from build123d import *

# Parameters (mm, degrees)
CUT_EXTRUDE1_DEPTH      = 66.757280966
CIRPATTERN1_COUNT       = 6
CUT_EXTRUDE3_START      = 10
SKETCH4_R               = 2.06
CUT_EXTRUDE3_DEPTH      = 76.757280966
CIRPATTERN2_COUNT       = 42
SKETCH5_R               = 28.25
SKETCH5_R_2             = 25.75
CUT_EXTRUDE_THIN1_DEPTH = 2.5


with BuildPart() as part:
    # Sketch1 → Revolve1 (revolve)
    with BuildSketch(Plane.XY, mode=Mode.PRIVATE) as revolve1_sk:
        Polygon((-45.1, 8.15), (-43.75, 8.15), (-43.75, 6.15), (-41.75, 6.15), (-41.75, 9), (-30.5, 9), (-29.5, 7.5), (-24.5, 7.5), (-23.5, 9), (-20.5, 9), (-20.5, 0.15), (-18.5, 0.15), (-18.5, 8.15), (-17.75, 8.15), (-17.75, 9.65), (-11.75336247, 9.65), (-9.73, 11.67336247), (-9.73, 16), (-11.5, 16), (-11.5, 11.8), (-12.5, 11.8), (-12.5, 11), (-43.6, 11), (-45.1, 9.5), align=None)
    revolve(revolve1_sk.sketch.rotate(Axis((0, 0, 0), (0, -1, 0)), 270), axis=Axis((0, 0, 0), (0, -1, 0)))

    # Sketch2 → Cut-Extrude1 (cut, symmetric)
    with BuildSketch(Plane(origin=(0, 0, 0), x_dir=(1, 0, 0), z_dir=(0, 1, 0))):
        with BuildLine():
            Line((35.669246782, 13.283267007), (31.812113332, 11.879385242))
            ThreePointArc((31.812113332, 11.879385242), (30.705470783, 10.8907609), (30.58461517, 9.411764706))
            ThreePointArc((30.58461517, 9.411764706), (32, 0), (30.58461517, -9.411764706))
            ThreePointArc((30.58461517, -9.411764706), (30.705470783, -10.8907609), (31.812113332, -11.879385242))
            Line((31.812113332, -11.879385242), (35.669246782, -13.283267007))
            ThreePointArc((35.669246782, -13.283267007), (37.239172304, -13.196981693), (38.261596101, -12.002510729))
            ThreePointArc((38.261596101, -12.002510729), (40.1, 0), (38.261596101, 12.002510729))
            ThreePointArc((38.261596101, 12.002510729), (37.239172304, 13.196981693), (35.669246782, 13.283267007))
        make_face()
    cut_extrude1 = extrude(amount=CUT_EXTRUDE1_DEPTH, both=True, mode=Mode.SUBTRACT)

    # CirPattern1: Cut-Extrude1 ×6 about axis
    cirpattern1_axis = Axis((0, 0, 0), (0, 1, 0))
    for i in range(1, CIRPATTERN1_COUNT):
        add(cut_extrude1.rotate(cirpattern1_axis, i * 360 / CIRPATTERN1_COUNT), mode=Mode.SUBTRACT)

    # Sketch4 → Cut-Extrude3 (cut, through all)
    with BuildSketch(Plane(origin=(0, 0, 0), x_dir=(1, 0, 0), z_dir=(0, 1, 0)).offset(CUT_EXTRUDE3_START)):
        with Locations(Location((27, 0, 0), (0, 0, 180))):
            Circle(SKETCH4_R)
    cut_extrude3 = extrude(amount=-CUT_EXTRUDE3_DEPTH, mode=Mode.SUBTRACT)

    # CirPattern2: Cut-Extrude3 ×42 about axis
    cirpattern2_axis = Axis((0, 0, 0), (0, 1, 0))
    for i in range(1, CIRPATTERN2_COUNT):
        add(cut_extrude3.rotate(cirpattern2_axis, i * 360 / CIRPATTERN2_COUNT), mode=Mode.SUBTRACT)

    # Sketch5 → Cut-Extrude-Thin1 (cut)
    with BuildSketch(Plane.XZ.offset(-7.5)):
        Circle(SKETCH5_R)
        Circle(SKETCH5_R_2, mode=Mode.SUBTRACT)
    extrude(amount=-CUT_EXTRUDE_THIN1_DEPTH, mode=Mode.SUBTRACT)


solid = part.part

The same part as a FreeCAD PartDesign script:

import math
import FreeCAD as App
import Part
import Sketcher

V = App.Vector
Q = App.Units.Quantity


def add_polygon(sketch, points):
    """Adds a closed chain of lines whose ends are joined by coincident constraints."""
    first, n = sketch.GeometryCount, len(points)
    for a, b in zip(points, points[1:] + points[:1]):
        sketch.addGeometry(Part.LineSegment(App.Vector(*a, 0), App.Vector(*b, 0)), False)
    for i in range(n):
        sketch.addConstraint(Sketcher.Constraint("Coincident", first + i, 2, first + (i + 1) % n, 1))

doc = App.newDocument("Part")
params = doc.addObject("Spreadsheet::Sheet", "Params")
for row, (alias, value) in enumerate([
    ("sketch1_width", "2 mm"),
    ("sketch1_width2", "5 mm"),
    ("sketch1_width3", "3 mm"),
    ("sketch1_width4", "1 mm"),
    ("sketch1_height", "8 mm"),
    ("revolution_angle", "360 deg"),
    ("sketch2_radius", "2 mm"),
    ("sketch2_radius2", "32 mm"),
    ("sketch2_radius3", "40.1 mm"),
    ("pocket1_length", "133.514562 mm"),
    ("sketch3_diameter", "4.12 mm"),
    ("sketch4_diameter", "56.5 mm"),
    ("sketch4_diameter2", "51.5 mm"),
    ("pocket3_length", "2.5 mm"),
], start=1):
    params.set(f"A{row}", alias)
    params.set(f"B{row}", "=" + value)
    params.setAlias(f"B{row}", alias)

body = doc.addObject("PartDesign::Body", "Body")

# Sketch on XY plane
sketch1 = body.newObject("Sketcher::SketchObject", "Sketch")
sketch1.AttachmentSupport = (doc.getObject("XY_Plane"), [""])
sketch1.MapMode = "FlatFace"
add_polygon(sketch1, [(-45.1, 8.15), (-43.75, 8.15), (-43.75, 6.15), (-41.75, 6.15), (-41.75, 9), (-30.5, 9), (-29.5, 7.5), (-24.5, 7.5), (-23.5, 9), (-20.5, 9), (-20.5, 0.15), (-18.5, 0.15), (-18.5, 8.15), (-17.75, 8.15), (-17.75, 9.65), (-11.753362, 9.65), (-9.73, 11.673362), (-9.73, 16), (-11.5, 16), (-11.5, 11.8), (-12.5, 11.8), (-12.5, 11), (-43.6, 11), (-45.1, 9.5)])  # lines 0-23
sketch1.addConstraint(Sketcher.Constraint("Horizontal", 0))
sketch1.addConstraint(Sketcher.Constraint("Vertical", 1))
sketch1.addConstraint(Sketcher.Constraint("Horizontal", 2))
sketch1.addConstraint(Sketcher.Constraint("Vertical", 3))
sketch1.addConstraint(Sketcher.Constraint("Horizontal", 4))
sketch1.addConstraint(Sketcher.Constraint("Horizontal", 6))
sketch1.addConstraint(Sketcher.Constraint("Horizontal", 8))
sketch1.addConstraint(Sketcher.Constraint("Vertical", 9))
sketch1.addConstraint(Sketcher.Constraint("Horizontal", 10))
sketch1.addConstraint(Sketcher.Constraint("Vertical", 11))
sketch1.addConstraint(Sketcher.Constraint("Horizontal", 12))
sketch1.addConstraint(Sketcher.Constraint("Vertical", 13))
sketch1.addConstraint(Sketcher.Constraint("Horizontal", 14))
sketch1.addConstraint(Sketcher.Constraint("Vertical", 16))
sketch1.addConstraint(Sketcher.Constraint("Horizontal", 17))
sketch1.addConstraint(Sketcher.Constraint("Vertical", 18))
sketch1.addConstraint(Sketcher.Constraint("Horizontal", 19))
sketch1.addConstraint(Sketcher.Constraint("Vertical", 20))
sketch1.addConstraint(Sketcher.Constraint("Horizontal", 21))
sketch1.addConstraint(Sketcher.Constraint("Vertical", 23))
sketch1.addConstraint(Sketcher.Constraint("Parallel", 15, 22))
sketch1.addConstraint(Sketcher.Constraint("Horizontal", 4, 2, 7, 2))
sketch1.addConstraint(Sketcher.Constraint("Horizontal", 0, 2, 11, 2))
sketch1.addConstraint(Sketcher.Constraint("Equal", 2, 10))
sketch1.addConstraint(Sketcher.Constraint("Equal", 10, 1))
sketch1.addConstraint(Sketcher.Constraint("Equal", 0, 23))
sketch1.addConstraint(Sketcher.Constraint("Equal", 5, 7))
sketch1.addConstraint(Sketcher.Constraint("DistanceX", 2, 1, 2, 2, Q("2 mm")))
sketch1.addConstraint(Sketcher.Constraint("DistanceX", 6, 1, 6, 2, Q("5 mm")))
sketch1.addConstraint(Sketcher.Constraint("DistanceX", 8, 1, 8, 2, Q("3 mm")))
sketch1.addConstraint(Sketcher.Constraint("DistanceX", 19, 2, 19, 1, Q("1 mm")))
sketch1.addConstraint(Sketcher.Constraint("DistanceY", 11, 1, 11, 2, Q("8 mm")))
sketch1.addConstraint(Sketcher.Constraint("Angle", 15, Q("45 deg")))
sketch1.addConstraint(Sketcher.Constraint("DistanceX", 21, 2, 21, 1, Q("31.1 mm")))
sketch1.addConstraint(Sketcher.Constraint("DistanceY", 13, 1, 13, 2, Q("1.5 mm")))
sketch1.addConstraint(Sketcher.Constraint("DistanceY", 18, 2, 18, 1, Q("4.2 mm")))
sketch1.addConstraint(Sketcher.Constraint("DistanceY", 20, 2, 20, 1, Q("0.8 mm")))
sketch1.addConstraint(Sketcher.Constraint("DistanceY", -1, 1, 3, 2, Q("9 mm")))
sketch1.addConstraint(Sketcher.Constraint("DistanceY", -1, 1, 16, 2, Q("16 mm")))
sketch1.addConstraint(Sketcher.Constraint("DistanceX", 4, 2, 5, 2, Q("1 mm")))
sketch1.addConstraint(Sketcher.Constraint("DistanceX", 0, 1, 0, 2, Q("1.35 mm")))
sketch1.addConstraint(Sketcher.Constraint("DistanceX", 4, 1, 4, 2, Q("11.25 mm")))
sketch1.addConstraint(Sketcher.Constraint("DistanceX", 12, 1, 12, 2, Q("0.75 mm")))
sketch1.addConstraint(Sketcher.Constraint("DistanceX", 17, 2, 17, 1, Q("1.77 mm")))
sketch1.addConstraint(Sketcher.Constraint("DistanceY", 3, 1, 3, 2, Q("2.85 mm")))
sketch1.addConstraint(Sketcher.Constraint("DistanceX", 4, 2, -1, 1, Q("30.5 mm")))
sketch1.addConstraint(Sketcher.Constraint("DistanceY", -1, 1, 5, 2, Q("7.5 mm")))
sketch1.addConstraint(Sketcher.Constraint("DistanceX", 14, 1, 14, 2, Q("5.996638 mm")))
sketch1.setExpression("Constraints[51]", "Params.sketch1_width")
sketch1.setExpression("Constraints[52]", "Params.sketch1_width2")
sketch1.setExpression("Constraints[53]", "Params.sketch1_width3")
sketch1.setExpression("Constraints[54]", "Params.sketch1_width4")
sketch1.setExpression("Constraints[55]", "Params.sketch1_height")
revolution = body.newObject("PartDesign::Revolution", "Revolution")
revolution.Profile = sketch1
revolution.ReferenceAxis = (sketch1, ["V_Axis"])
revolution.setExpression("Angle", "Params.revolution_angle")

# Sketch on XZ plane
sketch2 = body.newObject("Sketcher::SketchObject", "Sketch001")
sketch2.AttachmentSupport = (doc.getObject("XZ_Plane"), [""])
sketch2.MapMode = "FlatFace"
sketch2.addGeometry(Part.LineSegment(V(35.669247, -13.283267, 0), V(31.812113, -11.879385, 0)), False)
sketch2.addGeometry(Part.ArcOfCircle(Part.Circle(V(32.496154, -10, 0), V(0, 0, 1), 2), math.radians(162.895365), math.radians(250)), False)
sketch2.addGeometry(Part.ArcOfCircle(Part.Circle(V(0, 0, 0), V(0, 0, 1), 32), math.radians(-17.104635), math.radians(17.104635)), False)
sketch2.addGeometry(Part.ArcOfCircle(Part.Circle(V(32.496154, 10, 0), V(0, 0, 1), 2), math.radians(110), math.radians(197.104635)), False)
sketch2.addGeometry(Part.LineSegment(V(31.812113, 11.879385, 0), V(35.669247, 13.283267, 0)), False)
sketch2.addGeometry(Part.ArcOfCircle(Part.Circle(V(36.353287, 11.403882, 0), V(0, 0, 1), 2), math.radians(17.416434), math.radians(110)), False)
sketch2.addGeometry(Part.ArcOfCircle(Part.Circle(V(0, 0, 0), V(0, 0, 1), 40.1), math.radians(-17.416434), math.radians(17.416434)), False)
sketch2.addGeometry(Part.ArcOfCircle(Part.Circle(V(36.353287, -11.403882, 0), V(0, 0, 1), 2), math.radians(-110), math.radians(-17.416434)), False)
sketch2.addConstraint(Sketcher.Constraint("Tangent", 0, 2, 1, 2))
sketch2.addConstraint(Sketcher.Constraint("Tangent", 1, 1, 2, 1))
sketch2.addConstraint(Sketcher.Constraint("Tangent", 2, 2, 3, 2))
sketch2.addConstraint(Sketcher.Constraint("Tangent", 3, 1, 4, 1))
sketch2.addConstraint(Sketcher.Constraint("Tangent", 4, 2, 5, 2))
sketch2.addConstraint(Sketcher.Constraint("Tangent", 5, 1, 6, 2))
sketch2.addConstraint(Sketcher.Constraint("Tangent", 6, 1, 7, 2))
sketch2.addConstraint(Sketcher.Constraint("Tangent", 7, 1, 0, 1))
sketch2.addConstraint(Sketcher.Constraint("Coincident", 2, 3, -1, 1))
sketch2.addConstraint(Sketcher.Constraint("Coincident", 6, 3, -1, 1))
sketch2.addConstraint(Sketcher.Constraint("Equal", 1, 3))
sketch2.addConstraint(Sketcher.Constraint("Equal", 3, 5))
sketch2.addConstraint(Sketcher.Constraint("Equal", 5, 7))
sketch2.addConstraint(Sketcher.Constraint("Symmetric", 0, 2, 3, 1, -1))
sketch2.addConstraint(Sketcher.Constraint("Radius", 1, Q("2 mm")))
sketch2.addConstraint(Sketcher.Constraint("Radius", 2, Q("32 mm")))
sketch2.addConstraint(Sketcher.Constraint("Radius", 6, Q("40.1 mm")))
sketch2.addConstraint(Sketcher.Constraint("Angle", 0, Q("160 deg")))
sketch2.addConstraint(Sketcher.Constraint("DistanceY", 1, 3, -1, 1, Q("10 mm")))
sketch2.setExpression("Constraints[14]", "Params.sketch2_radius")
sketch2.setExpression("Constraints[15]", "Params.sketch2_radius2")
sketch2.setExpression("Constraints[16]", "Params.sketch2_radius3")
pocket1 = body.newObject("PartDesign::Pocket", "Pocket")
pocket1.Profile = sketch2
pocket1.setExpression("Length", "Params.pocket1_length")
pocket1.Midplane = True
doc.recompute()

polarpattern = body.newObject("PartDesign::PolarPattern", "PolarPattern")
polarpattern.Originals = [pocket1]
polarpattern.Axis = (doc.getObject("Y_Axis"), [""])
polarpattern.Angle = 360
polarpattern.Occurrences = 6
body.Tip = polarpattern

# Sketch on XZ plane
sketch3 = body.newObject("Sketcher::SketchObject", "Sketch002")
sketch3.AttachmentSupport = (doc.getObject("XZ_Plane"), [""])
sketch3.MapMode = "FlatFace"
sketch3.AttachmentOffset = App.Placement(V(0, 0, -10), App.Rotation())
sketch3.addGeometry(Part.Circle(V(27, 0, 0), V(0, 0, 1), 2.06), False)
sketch3.addConstraint(Sketcher.Constraint("PointOnObject", 0, 3, -1))
sketch3.addConstraint(Sketcher.Constraint("Diameter", 0, Q("4.12 mm")))
sketch3.addConstraint(Sketcher.Constraint("DistanceX", -1, 1, 0, 3, Q("27 mm")))
sketch3.setExpression("Constraints[1]", "Params.sketch3_diameter")
pocket2 = body.newObject("PartDesign::Pocket", "Pocket001")
pocket2.Profile = sketch3
pocket2.Type = "ThroughAll"
pocket2.Reversed = True
doc.recompute()

polarpattern2 = body.newObject("PartDesign::PolarPattern", "PolarPattern001")
polarpattern2.Originals = [pocket2]
polarpattern2.Axis = (doc.getObject("Y_Axis"), [""])
polarpattern2.Angle = 360
polarpattern2.Occurrences = 42
body.Tip = polarpattern2

# Sketch on XZ plane
sketch4 = body.newObject("Sketcher::SketchObject", "Sketch003")
sketch4.AttachmentSupport = (doc.getObject("XZ_Plane"), [""])
sketch4.MapMode = "FlatFace"
sketch4.AttachmentOffset = App.Placement(V(0, 0, -7.5), App.Rotation())
sketch4.addGeometry(Part.Circle(V(0, 0, 0), V(0, 0, 1), 28.25), False)
sketch4.addGeometry(Part.Circle(V(0, 0, 0), V(0, 0, 1), 25.75), False)
sketch4.addConstraint(Sketcher.Constraint("Coincident", 0, 3, -1, 1))
sketch4.addConstraint(Sketcher.Constraint("Coincident", 1, 3, -1, 1))
sketch4.addConstraint(Sketcher.Constraint("Diameter", 0, Q("56.5 mm")))
sketch4.addConstraint(Sketcher.Constraint("Diameter", 1, Q("51.5 mm")))
sketch4.setExpression("Constraints[2]", "Params.sketch4_diameter")
sketch4.setExpression("Constraints[3]", "Params.sketch4_diameter2")
pocket3 = body.newObject("PartDesign::Pocket", "Pocket002")
pocket3.Profile = sketch4
pocket3.setExpression("Length", "Params.pocket3_length")

doc.recompute()
